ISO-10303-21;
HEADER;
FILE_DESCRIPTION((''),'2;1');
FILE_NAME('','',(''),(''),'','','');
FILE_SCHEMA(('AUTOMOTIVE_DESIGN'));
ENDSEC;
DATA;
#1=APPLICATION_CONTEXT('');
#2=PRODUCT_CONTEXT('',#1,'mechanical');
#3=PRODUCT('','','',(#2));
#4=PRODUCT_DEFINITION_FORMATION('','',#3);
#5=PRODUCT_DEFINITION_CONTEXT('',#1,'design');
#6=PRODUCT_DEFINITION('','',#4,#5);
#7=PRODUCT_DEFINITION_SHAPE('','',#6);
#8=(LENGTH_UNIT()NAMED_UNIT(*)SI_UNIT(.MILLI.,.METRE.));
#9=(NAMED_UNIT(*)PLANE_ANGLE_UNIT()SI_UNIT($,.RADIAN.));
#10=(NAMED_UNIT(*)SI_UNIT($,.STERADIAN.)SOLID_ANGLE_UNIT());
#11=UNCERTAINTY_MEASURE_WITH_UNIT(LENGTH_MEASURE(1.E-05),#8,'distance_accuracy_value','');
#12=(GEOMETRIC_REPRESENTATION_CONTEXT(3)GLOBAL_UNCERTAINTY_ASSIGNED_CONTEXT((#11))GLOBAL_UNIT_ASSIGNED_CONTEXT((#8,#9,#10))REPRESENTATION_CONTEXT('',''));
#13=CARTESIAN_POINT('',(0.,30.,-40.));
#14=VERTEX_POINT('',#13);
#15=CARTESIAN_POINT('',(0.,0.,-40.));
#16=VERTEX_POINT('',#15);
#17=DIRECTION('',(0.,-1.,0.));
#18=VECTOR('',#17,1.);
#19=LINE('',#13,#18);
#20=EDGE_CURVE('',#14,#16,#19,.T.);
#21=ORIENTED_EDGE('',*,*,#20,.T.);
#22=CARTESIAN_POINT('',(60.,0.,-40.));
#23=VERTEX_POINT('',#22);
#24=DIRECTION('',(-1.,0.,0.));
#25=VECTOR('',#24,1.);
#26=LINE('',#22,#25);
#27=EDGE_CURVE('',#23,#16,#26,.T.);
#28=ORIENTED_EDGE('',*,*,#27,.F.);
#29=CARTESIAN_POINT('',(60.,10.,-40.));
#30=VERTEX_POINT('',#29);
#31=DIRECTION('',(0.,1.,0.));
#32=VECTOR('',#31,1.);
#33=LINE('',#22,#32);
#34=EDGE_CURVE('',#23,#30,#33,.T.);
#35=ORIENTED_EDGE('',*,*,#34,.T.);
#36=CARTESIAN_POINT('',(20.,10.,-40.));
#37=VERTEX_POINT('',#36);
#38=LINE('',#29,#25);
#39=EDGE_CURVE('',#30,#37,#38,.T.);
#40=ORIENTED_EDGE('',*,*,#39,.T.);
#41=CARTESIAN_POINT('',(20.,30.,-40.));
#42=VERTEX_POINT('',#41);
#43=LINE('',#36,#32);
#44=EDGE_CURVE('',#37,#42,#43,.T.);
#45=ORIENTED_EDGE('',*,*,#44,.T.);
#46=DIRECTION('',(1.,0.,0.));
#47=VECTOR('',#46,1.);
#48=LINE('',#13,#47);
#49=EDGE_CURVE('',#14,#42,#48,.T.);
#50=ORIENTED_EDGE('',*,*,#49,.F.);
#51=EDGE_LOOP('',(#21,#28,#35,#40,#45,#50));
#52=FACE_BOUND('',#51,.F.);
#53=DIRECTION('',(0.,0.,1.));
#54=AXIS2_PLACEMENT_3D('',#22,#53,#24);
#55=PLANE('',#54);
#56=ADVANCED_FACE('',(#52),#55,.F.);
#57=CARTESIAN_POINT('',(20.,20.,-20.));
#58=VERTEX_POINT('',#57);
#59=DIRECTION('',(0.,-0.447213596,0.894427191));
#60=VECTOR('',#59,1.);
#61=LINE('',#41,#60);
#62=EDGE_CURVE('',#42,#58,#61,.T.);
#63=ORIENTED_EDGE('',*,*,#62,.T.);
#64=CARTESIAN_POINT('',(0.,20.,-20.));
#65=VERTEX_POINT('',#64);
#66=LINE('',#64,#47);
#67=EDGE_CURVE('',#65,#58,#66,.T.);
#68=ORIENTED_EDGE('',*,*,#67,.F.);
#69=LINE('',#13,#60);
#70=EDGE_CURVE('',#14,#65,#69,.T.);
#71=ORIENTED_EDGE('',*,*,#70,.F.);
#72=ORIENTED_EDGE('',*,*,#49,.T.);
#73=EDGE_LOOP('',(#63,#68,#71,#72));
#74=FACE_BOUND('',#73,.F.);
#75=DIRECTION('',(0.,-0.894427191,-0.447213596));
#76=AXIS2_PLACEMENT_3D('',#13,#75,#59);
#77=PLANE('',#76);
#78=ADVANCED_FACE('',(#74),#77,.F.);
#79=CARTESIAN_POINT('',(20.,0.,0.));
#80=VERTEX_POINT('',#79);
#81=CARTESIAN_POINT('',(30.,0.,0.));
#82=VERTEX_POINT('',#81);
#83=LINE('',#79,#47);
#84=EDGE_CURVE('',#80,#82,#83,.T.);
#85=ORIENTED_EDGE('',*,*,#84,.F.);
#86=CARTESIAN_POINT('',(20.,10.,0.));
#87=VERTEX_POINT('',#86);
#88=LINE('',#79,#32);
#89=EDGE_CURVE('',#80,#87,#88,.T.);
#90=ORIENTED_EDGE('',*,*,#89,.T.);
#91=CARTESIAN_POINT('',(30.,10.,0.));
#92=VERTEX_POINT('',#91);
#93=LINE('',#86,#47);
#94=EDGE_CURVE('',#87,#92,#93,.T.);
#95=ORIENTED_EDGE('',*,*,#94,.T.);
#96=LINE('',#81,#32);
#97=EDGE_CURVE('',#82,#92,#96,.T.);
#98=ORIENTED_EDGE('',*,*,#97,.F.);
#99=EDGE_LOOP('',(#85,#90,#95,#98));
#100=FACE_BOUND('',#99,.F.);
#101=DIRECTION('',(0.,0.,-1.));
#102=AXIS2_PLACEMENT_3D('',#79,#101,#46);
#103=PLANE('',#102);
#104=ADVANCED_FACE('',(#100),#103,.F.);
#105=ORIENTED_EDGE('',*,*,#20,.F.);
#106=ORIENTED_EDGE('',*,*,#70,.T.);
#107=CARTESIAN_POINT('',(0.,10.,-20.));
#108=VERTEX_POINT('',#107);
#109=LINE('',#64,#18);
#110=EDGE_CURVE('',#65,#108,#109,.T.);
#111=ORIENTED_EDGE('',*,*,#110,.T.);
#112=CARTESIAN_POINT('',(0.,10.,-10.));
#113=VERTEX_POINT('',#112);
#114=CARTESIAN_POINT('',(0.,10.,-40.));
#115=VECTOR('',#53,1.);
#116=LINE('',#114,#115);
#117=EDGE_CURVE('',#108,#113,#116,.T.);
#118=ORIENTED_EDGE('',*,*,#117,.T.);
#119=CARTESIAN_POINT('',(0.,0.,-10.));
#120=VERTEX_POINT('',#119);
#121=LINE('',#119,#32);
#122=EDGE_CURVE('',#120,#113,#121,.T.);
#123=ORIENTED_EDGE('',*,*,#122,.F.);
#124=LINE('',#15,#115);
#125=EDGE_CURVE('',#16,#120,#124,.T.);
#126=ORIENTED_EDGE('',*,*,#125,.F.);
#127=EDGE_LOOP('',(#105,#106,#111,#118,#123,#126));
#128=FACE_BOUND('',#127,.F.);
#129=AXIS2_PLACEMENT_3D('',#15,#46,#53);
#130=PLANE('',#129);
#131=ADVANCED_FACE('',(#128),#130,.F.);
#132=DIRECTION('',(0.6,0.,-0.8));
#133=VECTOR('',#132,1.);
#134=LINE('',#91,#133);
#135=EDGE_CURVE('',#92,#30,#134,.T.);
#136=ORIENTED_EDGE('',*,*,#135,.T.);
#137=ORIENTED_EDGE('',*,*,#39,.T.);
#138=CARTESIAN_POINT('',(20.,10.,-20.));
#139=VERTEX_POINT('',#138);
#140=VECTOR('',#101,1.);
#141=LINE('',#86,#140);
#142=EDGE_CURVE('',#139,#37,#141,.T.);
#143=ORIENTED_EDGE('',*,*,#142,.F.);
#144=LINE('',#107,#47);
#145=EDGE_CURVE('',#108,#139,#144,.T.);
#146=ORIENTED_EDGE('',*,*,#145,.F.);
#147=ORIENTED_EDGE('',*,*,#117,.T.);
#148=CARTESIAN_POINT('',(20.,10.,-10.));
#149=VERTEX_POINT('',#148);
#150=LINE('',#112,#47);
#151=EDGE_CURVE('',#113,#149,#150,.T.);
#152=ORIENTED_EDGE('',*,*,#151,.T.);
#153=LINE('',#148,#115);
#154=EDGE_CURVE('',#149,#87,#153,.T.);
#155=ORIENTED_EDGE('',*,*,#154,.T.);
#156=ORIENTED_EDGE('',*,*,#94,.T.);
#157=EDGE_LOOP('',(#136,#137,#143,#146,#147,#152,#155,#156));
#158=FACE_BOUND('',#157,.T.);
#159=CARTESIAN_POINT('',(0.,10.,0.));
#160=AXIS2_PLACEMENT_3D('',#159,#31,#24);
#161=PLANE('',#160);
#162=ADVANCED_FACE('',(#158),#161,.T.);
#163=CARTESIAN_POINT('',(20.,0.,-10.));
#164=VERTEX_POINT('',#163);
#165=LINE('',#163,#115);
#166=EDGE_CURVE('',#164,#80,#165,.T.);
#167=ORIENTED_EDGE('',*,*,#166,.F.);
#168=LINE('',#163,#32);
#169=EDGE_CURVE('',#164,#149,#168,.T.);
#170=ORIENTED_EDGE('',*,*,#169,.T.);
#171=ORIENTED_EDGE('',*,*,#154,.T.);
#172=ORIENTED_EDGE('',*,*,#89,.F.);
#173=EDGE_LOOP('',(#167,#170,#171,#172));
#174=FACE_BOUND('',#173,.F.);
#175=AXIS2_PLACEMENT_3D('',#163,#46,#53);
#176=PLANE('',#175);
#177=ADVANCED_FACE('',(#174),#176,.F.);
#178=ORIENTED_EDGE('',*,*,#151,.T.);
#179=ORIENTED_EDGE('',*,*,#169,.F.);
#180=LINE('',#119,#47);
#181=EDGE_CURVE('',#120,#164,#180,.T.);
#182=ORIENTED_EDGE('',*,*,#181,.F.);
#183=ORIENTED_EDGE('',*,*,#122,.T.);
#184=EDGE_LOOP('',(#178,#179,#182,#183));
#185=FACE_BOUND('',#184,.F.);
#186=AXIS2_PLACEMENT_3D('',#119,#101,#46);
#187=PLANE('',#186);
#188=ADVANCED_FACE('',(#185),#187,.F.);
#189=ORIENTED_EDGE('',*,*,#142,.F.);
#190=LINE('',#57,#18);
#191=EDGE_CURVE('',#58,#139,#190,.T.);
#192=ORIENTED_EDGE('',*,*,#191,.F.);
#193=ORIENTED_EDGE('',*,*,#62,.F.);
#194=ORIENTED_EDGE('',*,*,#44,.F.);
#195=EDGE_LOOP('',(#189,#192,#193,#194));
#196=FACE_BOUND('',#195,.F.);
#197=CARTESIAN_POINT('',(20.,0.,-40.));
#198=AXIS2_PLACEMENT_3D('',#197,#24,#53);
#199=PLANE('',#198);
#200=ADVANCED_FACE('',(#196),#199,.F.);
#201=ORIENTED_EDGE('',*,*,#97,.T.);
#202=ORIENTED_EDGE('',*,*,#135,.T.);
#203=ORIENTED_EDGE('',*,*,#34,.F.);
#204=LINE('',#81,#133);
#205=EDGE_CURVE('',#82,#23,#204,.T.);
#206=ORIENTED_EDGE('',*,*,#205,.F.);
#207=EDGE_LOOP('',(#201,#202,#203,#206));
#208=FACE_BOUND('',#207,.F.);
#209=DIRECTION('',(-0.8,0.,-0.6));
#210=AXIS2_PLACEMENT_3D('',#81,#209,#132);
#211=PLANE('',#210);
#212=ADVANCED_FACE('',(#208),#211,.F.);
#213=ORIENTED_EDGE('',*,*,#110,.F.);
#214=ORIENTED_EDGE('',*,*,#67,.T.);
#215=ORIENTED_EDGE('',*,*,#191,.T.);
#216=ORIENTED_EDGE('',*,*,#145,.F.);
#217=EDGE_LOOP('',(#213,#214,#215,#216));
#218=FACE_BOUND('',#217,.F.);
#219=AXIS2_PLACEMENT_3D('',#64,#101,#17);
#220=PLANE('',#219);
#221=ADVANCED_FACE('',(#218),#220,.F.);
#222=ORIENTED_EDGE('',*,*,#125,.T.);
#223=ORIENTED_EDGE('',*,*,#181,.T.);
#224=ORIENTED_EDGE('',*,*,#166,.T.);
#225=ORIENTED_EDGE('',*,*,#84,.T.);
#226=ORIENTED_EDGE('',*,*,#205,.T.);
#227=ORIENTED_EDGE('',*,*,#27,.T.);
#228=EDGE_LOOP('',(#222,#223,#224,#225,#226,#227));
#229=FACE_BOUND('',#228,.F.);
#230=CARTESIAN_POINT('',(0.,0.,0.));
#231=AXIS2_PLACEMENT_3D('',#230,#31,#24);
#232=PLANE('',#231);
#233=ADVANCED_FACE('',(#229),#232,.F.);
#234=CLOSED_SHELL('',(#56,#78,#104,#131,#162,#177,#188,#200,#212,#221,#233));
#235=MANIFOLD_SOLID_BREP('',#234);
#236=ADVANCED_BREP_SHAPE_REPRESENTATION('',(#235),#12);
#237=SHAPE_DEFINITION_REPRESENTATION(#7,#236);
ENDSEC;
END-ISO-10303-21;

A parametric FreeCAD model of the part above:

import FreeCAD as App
import Part
import Sketcher
from FreeCAD import Vector
Q = App.Units.Quantity

doc = App.newDocument("Part")
body = doc.addObject("PartDesign::Body", "Body")

sketch1 = body.newObject("Sketcher::SketchObject", "Sketch")
sketch1.AttachmentSupport = (doc.getObject("XZ_Plane"), [""])
sketch1.MapMode = "FlatFace"
sketch1.addGeometry([
    Part.LineSegment(Vector(0, -40, 0), Vector(0, -10, 0)),
    Part.LineSegment(Vector(0, -10, 0), Vector(20, -10, 0)),
    Part.LineSegment(Vector(20, -10, 0), Vector(20, 0, 0)),
    Part.LineSegment(Vector(20, 0, 0), Vector(30, 0, 0)),
    Part.LineSegment(Vector(30, 0, 0), Vector(60, -40, 0)),
    Part.LineSegment(Vector(60, -40, 0), Vector(0, -40, 0)),
], False)
sketch1.addConstraint([
    Sketcher.Constraint("Coincident", 0, 2, 1, 1),
    Sketcher.Constraint("Coincident", 1, 2, 2, 1),
    Sketcher.Constraint("Coincident", 2, 2, 3, 1),
    Sketcher.Constraint("Coincident", 3, 2, 4, 1),
    Sketcher.Constraint("Coincident", 4, 2, 5, 1),
    Sketcher.Constraint("Coincident", 5, 2, 0, 1),
    Sketcher.Constraint("Vertical", 0),
    Sketcher.Constraint("Horizontal", 1),
    Sketcher.Constraint("Vertical", 2),
    Sketcher.Constraint("Horizontal", 3),
    Sketcher.Constraint("Horizontal", 5),
    Sketcher.Constraint("PointOnObject", 0, 2, -2),
    Sketcher.Constraint("PointOnObject", 2, 2, -1),
    Sketcher.Constraint("Equal", 3, 2),
    Sketcher.Constraint("DistanceX", 1, 1, 1, 2, Q("20 mm")),
    Sketcher.Constraint("DistanceX", 3, 1, 3, 2, Q("10 mm")),
    Sketcher.Constraint("DistanceX", 5, 2, 5, 1, Q("60 mm")),
    Sketcher.Constraint("DistanceY", 0, 1, 0, 2, Q("30 mm")),
])
pad1 = body.newObject("PartDesign::Pad", "Pad")
pad1.Profile = sketch1
pad1.Length = 10
pad1.Reversed = True

sketch2 = body.newObject("Sketcher::SketchObject", "Sketch001")
sketch2.AttachmentSupport = (doc.getObject("YZ_Plane"), [""])
sketch2.MapMode = "FlatFace"
sketch2.addGeometry([
    Part.LineSegment(Vector(10, -40, 0), Vector(10, -20, 0)),
    Part.LineSegment(Vector(10, -20, 0), Vector(20, -20, 0)),
    Part.LineSegment(Vector(20, -20, 0), Vector(30, -40, 0)),
    Part.LineSegment(Vector(30, -40, 0), Vector(10, -40, 0)),
], False)
sketch2.addConstraint([
    Sketcher.Constraint("Coincident", 0, 2, 1, 1),
    Sketcher.Constraint("Coincident", 1, 2, 2, 1),
    Sketcher.Constraint("Coincident", 2, 2, 3, 1),
    Sketcher.Constraint("Coincident", 3, 2, 0, 1),
    Sketcher.Constraint("Vertical", 0),
    Sketcher.Constraint("Horizontal", 1),
    Sketcher.Constraint("Horizontal", 3),
    Sketcher.Constraint("Equal", 3, 0),
    Sketcher.Constraint("DistanceX", 1, 1, 1, 2, Q("10 mm")),
    Sketcher.Constraint("DistanceX", 3, 2, 3, 1, Q("20 mm")),
    Sketcher.Constraint("DistanceX", -1, 1, 0, 2, Q("10 mm")),
    Sketcher.Constraint("DistanceY", 0, 2, -1, 1, Q("20 mm")),
])
pad2 = body.newObject("PartDesign::Pad", "Pad001")
pad2.Profile = sketch2
pad2.Length = 20

doc.recompute()
